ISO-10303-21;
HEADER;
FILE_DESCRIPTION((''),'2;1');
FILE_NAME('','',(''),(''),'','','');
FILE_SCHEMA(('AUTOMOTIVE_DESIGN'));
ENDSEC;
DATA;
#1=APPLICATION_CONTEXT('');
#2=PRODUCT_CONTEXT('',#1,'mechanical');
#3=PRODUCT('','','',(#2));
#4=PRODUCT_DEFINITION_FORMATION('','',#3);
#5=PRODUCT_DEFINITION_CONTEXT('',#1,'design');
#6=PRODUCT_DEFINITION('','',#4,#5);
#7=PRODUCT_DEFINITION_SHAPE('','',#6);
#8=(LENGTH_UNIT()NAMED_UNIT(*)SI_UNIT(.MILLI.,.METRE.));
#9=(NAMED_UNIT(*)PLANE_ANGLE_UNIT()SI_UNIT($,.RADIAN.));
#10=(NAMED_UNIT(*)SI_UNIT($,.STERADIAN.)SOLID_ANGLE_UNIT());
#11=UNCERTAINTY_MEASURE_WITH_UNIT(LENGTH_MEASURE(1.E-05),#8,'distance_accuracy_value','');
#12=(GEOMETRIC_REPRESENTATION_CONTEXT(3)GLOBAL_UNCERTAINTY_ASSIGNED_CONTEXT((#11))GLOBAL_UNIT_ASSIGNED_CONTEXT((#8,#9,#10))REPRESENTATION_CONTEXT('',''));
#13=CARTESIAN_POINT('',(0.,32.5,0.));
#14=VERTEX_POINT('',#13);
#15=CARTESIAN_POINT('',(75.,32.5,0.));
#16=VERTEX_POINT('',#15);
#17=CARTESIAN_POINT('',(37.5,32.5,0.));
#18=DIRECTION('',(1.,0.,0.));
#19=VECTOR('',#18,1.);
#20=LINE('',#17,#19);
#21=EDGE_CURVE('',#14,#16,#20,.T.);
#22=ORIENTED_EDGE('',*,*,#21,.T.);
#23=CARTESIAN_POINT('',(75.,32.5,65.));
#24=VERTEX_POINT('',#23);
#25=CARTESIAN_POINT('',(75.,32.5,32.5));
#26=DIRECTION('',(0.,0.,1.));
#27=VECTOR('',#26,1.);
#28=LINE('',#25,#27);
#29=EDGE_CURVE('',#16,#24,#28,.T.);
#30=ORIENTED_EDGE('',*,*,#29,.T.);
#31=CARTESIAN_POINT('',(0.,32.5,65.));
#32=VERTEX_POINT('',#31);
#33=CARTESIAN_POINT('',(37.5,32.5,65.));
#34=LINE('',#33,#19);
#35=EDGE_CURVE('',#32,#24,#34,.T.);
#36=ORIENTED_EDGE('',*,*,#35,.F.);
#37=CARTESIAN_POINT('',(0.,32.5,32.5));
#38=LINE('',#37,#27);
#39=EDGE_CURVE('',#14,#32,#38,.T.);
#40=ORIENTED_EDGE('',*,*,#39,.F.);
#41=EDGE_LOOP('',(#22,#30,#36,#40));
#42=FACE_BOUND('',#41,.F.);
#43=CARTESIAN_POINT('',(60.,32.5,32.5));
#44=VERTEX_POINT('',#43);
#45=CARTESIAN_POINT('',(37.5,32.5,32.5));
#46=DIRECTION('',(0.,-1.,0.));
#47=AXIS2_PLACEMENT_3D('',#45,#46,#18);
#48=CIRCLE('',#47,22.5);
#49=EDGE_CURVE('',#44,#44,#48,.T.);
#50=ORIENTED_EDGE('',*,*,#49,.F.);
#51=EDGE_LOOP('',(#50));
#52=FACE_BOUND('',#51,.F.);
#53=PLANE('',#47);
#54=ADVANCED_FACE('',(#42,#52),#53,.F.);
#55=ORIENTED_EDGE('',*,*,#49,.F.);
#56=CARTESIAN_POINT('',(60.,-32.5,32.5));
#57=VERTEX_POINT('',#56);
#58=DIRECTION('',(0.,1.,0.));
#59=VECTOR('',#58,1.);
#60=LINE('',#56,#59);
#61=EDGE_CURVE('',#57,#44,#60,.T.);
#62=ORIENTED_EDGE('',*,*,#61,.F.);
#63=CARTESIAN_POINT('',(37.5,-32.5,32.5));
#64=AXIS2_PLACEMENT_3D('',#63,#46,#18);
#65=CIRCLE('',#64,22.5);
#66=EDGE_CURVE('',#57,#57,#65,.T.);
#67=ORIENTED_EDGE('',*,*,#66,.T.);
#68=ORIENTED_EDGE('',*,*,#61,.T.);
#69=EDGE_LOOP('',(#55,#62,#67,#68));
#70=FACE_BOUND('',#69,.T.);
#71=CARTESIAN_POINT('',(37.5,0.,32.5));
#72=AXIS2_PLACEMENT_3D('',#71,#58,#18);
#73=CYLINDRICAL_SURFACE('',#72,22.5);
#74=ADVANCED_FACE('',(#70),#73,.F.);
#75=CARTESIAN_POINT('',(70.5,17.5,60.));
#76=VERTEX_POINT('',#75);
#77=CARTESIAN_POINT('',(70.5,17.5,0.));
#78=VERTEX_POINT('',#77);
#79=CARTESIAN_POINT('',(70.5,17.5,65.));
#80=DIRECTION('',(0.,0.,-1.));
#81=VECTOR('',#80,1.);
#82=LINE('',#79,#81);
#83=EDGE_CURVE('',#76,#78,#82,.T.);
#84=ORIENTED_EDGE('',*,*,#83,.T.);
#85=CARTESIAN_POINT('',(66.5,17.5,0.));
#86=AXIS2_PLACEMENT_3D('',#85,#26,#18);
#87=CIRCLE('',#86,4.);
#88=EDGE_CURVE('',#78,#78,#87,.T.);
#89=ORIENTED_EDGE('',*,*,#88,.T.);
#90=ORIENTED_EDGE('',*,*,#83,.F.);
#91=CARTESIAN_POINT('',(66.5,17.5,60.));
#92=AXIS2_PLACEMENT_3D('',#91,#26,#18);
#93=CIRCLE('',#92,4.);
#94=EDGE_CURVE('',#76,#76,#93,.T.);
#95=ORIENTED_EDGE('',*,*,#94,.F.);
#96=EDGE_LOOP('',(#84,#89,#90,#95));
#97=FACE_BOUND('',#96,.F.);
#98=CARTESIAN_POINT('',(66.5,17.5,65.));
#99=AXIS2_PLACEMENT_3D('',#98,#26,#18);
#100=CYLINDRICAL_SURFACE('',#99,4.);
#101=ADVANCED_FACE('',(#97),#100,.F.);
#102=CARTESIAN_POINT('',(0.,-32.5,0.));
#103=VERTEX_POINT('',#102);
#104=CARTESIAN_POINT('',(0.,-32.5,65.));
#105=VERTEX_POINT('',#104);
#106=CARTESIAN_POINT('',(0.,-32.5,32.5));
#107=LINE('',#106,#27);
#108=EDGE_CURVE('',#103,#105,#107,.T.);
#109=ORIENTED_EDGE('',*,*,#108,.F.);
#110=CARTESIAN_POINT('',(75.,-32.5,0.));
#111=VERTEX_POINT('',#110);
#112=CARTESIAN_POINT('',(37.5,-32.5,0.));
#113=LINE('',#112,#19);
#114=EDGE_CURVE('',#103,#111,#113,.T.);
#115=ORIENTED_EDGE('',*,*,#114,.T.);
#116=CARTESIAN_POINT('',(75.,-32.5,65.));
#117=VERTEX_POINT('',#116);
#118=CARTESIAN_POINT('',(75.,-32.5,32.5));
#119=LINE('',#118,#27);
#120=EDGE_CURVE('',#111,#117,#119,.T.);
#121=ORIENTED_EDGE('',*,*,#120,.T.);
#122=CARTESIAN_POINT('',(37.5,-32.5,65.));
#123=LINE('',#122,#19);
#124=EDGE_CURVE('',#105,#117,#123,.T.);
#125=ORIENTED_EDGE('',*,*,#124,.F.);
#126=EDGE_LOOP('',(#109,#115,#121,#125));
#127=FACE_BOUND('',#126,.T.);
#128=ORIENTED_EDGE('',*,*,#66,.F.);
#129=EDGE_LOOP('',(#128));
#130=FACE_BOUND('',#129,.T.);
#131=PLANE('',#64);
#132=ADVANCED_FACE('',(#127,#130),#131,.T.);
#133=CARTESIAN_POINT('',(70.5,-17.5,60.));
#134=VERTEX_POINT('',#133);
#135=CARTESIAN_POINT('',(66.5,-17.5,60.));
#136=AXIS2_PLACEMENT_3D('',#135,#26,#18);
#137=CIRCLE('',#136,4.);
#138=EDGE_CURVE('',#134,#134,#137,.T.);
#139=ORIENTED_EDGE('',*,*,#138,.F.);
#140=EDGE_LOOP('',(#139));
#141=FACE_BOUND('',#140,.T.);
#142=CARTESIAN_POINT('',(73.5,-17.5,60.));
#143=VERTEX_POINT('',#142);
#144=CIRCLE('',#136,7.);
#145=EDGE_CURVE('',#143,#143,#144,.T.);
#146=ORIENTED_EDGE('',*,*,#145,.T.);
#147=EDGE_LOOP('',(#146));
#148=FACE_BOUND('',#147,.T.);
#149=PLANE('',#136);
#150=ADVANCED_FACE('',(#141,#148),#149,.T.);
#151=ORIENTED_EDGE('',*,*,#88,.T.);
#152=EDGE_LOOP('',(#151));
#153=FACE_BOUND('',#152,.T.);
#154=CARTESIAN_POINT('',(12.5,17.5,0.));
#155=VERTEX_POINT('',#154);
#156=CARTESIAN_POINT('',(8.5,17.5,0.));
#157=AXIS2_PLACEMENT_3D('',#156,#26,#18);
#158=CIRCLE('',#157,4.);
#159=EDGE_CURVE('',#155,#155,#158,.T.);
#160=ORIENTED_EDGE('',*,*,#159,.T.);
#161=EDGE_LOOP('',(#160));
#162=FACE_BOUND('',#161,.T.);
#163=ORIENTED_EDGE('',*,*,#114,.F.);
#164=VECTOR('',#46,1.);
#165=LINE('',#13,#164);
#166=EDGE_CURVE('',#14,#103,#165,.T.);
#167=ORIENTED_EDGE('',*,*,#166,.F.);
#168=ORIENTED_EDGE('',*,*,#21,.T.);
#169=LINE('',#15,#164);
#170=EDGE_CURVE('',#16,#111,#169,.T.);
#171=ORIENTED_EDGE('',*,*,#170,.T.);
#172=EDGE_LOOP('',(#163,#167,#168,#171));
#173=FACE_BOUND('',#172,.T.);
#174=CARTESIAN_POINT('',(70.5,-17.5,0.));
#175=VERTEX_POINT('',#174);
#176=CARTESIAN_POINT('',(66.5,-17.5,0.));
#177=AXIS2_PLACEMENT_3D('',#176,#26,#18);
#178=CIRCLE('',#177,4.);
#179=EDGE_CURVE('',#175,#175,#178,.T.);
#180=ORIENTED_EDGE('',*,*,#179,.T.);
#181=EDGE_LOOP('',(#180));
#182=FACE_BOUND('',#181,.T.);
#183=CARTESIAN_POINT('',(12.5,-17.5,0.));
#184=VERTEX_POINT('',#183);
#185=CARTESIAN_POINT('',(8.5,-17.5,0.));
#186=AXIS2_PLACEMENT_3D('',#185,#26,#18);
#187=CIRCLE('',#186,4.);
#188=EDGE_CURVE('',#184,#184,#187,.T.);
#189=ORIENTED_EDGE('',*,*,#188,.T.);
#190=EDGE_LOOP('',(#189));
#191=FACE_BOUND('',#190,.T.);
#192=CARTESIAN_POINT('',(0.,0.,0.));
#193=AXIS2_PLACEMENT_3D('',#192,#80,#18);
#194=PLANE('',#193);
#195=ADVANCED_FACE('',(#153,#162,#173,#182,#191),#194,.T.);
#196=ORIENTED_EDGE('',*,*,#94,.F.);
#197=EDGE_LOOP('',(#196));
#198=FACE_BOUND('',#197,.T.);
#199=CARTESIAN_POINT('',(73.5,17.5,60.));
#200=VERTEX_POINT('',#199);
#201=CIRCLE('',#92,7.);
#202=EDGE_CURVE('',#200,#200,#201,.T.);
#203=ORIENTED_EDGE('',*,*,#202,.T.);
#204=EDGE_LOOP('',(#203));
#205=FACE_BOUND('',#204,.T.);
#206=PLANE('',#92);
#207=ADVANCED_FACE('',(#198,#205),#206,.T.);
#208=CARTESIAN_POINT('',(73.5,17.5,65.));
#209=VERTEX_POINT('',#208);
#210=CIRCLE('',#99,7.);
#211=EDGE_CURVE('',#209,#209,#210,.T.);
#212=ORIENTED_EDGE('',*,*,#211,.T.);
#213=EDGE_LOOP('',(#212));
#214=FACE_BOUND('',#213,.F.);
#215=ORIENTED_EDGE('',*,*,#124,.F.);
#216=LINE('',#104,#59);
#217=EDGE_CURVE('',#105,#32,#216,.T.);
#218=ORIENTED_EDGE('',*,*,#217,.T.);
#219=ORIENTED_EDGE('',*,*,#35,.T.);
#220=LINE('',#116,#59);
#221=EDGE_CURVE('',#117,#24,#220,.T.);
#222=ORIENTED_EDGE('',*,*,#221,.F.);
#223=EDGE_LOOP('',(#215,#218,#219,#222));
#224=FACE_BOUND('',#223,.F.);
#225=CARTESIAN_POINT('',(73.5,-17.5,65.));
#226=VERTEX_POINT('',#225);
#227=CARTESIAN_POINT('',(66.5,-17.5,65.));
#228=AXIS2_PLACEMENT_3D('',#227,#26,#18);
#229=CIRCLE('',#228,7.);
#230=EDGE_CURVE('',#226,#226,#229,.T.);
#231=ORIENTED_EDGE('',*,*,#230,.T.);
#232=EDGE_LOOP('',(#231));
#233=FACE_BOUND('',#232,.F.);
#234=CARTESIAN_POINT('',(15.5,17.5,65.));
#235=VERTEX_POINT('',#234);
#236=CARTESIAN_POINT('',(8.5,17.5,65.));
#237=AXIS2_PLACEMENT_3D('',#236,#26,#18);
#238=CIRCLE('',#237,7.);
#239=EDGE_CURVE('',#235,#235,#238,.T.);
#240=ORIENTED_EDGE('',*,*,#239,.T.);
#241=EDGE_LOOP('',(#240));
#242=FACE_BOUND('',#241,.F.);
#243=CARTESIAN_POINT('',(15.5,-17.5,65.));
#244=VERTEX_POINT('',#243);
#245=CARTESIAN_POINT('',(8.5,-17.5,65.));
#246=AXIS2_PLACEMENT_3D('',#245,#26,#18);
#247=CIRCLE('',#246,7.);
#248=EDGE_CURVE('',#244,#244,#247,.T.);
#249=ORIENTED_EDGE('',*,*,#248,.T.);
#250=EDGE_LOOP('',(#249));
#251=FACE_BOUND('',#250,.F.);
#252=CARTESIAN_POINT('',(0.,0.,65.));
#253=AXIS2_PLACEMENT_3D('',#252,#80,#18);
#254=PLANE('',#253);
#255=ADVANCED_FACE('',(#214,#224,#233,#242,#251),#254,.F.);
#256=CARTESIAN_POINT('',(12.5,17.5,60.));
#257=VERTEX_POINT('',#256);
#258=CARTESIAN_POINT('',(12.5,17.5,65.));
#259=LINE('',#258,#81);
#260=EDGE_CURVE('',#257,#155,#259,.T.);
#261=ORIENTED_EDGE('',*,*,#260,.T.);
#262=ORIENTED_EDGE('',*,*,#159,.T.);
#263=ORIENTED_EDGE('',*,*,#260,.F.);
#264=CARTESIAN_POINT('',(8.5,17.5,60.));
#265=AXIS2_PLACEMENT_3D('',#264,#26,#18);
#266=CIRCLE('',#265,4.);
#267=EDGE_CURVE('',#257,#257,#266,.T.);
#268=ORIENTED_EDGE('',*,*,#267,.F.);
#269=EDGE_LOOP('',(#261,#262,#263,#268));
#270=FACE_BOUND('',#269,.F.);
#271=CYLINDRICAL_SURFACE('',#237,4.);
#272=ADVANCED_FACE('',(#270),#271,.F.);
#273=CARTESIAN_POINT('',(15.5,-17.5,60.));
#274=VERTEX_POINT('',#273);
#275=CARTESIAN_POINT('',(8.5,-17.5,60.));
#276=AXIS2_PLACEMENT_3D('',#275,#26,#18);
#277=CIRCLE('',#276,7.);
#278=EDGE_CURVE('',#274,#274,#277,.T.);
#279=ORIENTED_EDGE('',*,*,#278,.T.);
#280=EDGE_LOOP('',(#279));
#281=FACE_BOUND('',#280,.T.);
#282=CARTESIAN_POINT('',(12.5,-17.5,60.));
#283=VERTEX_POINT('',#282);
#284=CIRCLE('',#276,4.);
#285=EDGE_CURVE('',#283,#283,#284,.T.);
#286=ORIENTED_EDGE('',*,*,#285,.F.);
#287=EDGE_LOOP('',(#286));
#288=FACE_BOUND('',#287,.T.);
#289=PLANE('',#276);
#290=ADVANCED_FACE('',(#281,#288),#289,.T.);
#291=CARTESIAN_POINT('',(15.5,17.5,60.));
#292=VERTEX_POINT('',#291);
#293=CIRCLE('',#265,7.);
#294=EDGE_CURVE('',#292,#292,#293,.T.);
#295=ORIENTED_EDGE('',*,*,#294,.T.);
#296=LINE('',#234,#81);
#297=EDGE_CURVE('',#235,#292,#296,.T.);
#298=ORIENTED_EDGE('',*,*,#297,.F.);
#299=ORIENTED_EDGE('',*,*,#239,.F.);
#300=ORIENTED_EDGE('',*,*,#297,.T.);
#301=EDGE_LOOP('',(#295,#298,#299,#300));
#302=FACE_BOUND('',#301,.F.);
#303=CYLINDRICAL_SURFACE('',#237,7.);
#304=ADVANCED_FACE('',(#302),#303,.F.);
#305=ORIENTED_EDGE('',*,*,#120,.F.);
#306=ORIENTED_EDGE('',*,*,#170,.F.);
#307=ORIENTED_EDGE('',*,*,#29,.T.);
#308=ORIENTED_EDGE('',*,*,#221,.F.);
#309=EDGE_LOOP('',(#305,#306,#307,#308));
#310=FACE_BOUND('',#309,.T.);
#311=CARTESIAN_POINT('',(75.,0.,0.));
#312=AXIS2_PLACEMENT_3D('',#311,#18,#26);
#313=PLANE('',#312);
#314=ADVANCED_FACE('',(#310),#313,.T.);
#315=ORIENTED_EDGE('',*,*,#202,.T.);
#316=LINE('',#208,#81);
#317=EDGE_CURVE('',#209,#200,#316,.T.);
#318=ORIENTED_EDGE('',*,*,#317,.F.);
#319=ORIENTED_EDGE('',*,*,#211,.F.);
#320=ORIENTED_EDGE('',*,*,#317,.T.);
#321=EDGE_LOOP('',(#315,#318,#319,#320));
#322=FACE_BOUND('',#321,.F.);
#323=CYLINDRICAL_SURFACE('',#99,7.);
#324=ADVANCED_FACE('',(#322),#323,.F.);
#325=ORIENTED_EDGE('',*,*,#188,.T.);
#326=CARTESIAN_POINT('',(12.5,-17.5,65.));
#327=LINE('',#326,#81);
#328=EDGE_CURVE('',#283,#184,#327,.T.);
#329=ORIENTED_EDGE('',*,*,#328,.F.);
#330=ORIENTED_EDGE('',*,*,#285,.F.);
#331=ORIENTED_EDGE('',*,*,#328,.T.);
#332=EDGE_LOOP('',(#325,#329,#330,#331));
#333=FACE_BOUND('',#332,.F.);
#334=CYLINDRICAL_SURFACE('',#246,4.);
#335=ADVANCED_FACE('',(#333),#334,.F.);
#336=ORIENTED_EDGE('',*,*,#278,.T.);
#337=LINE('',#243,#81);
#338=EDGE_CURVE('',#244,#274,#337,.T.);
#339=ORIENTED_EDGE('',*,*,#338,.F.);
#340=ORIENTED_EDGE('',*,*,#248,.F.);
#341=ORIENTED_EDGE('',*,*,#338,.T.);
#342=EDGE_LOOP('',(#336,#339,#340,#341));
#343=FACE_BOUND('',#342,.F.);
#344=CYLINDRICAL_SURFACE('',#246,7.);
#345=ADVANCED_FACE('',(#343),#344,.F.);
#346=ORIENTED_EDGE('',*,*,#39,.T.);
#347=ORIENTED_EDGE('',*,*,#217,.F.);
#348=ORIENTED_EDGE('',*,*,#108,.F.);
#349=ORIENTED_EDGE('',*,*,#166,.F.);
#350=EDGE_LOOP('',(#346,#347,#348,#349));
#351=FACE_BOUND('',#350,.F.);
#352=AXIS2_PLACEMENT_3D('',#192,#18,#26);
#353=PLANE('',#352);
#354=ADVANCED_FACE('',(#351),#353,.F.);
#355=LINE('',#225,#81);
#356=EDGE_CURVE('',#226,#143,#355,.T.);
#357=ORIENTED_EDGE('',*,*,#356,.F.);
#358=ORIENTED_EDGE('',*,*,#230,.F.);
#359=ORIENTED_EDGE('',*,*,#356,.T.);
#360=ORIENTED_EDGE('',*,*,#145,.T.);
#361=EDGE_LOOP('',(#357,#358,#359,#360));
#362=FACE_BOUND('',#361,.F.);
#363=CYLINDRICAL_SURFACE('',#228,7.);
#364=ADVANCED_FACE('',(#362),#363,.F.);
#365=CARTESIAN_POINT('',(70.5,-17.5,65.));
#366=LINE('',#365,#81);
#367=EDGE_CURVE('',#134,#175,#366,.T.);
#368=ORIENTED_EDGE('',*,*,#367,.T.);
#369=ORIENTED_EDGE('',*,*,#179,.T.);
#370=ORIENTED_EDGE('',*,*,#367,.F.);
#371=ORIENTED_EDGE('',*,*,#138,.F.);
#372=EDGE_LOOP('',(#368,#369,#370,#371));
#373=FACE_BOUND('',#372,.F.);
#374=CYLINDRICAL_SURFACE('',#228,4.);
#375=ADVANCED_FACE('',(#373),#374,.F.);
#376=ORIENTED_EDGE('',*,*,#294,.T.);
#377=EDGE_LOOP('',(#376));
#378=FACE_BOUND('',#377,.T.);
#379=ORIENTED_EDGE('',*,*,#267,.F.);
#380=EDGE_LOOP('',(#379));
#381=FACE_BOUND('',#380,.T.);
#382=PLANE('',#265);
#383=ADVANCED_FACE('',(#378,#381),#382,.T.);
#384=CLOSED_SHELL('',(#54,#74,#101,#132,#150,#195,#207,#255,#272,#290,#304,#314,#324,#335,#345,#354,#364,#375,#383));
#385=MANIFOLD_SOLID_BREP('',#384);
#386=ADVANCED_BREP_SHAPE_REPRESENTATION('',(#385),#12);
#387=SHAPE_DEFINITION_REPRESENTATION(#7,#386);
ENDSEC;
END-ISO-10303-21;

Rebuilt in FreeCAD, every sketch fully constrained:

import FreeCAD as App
import Part
import Sketcher

doc = App.newDocument("Part")
body = doc.addObject("PartDesign::Body", "Body")

# Sketch on XZ plane
sketch1 = body.newObject("Sketcher::SketchObject", "Sketch")
sketch1.AttachmentSupport = (doc.getObject("XZ_Plane"), [""])
sketch1.MapMode = "FlatFace"
sketch1.addGeometry([
    Part.LineSegment(App.Vector(0, 65, 0), App.Vector(0, 0, 0)),  # 0
    Part.LineSegment(App.Vector(0, 0, 0), App.Vector(75, 0, 0)),  # 1
    Part.LineSegment(App.Vector(75, 0, 0), App.Vector(75, 65, 0)),  # 2
    Part.LineSegment(App.Vector(75, 65, 0), App.Vector(0, 65, 0)),  # 3
    Part.Circle(App.Vector(38, 32, 0), App.Vector(0, 0, 1), 22),  # 4
], False)
sketch1.addConstraint([
    Sketcher.Constraint("Coincident", 0, 2, 1, 1),
    Sketcher.Constraint("Coincident", 1, 2, 2, 1),
    Sketcher.Constraint("Coincident", 2, 2, 3, 1),
    Sketcher.Constraint("Coincident", 3, 2, 0, 1),
    Sketcher.Constraint("Vertical", 0),
    Sketcher.Constraint("Horizontal", 1),
    Sketcher.Constraint("Vertical", 2),
    Sketcher.Constraint("Horizontal", 3),
    Sketcher.Constraint("Coincident", 0, 2, -1, 1),
    Sketcher.Constraint("Diameter", 4, 45.0),
    Sketcher.Constraint("DistanceX", 1, 1, 1, 2, 75.0),
    Sketcher.Constraint("DistanceY", 0, 2, 0, 1, 65.0),
    Sketcher.Constraint("DistanceX", -1, 1, 4, 3, 37.5),
    Sketcher.Constraint("DistanceY", -1, 1, 4, 3, 32.5),
])
pad1 = body.newObject("PartDesign::Pad", "Pad")
pad1.Profile = sketch1
pad1.Length = 65
pad1.Midplane = True

# Sketch on XY plane
sketch2 = body.newObject("Sketcher::SketchObject", "Sketch001")
sketch2.AttachmentSupport = (doc.getObject("XY_Plane"), [""])
sketch2.MapMode = "FlatFace"
sketch2.AttachmentOffset = App.Placement(App.Vector(0, 0, 65), App.Rotation())
sketch2.addGeometry([
    Part.Circle(App.Vector(66.5, 17.5, 0), App.Vector(0, 0, 1), 4),
    Part.Circle(App.Vector(66.5, -17.5, 0), App.Vector(0, 0, 1), 4),
    Part.Circle(App.Vector(8.5, -17.5, 0), App.Vector(0, 0, 1), 4),
    Part.Circle(App.Vector(8.5, 17.5, 0), App.Vector(0, 0, 1), 4),
], False)
sketch2.addConstraint([
    Sketcher.Constraint("Equal", 0, 1),
    Sketcher.Constraint("Equal", 1, 2),
    Sketcher.Constraint("Equal", 2, 3),
    Sketcher.Constraint("Symmetric", 0, 3, 1, 3, -1),
    Sketcher.Constraint("Symmetric", 2, 3, 3, 3, -1),
    Sketcher.Constraint("Horizontal", 1, 3, 2, 3),
    Sketcher.Constraint("Diameter", 0, 8.0),
    Sketcher.Constraint("DistanceY", 1, 3, 0, 3, 35.0),
    Sketcher.Constraint("DistanceX", 2, 3, 1, 3, 58.0),
    Sketcher.Constraint("DistanceX", -1, 1, 0, 3, 66.5),
])
pocket1 = body.newObject("PartDesign::Pocket", "Pocket")
pocket1.Profile = sketch2
pocket1.Type = "ThroughAll"

# Sketch on XY plane
sketch3 = body.newObject("Sketcher::SketchObject", "Sketch002")
sketch3.AttachmentSupport = (doc.getObject("XY_Plane"), [""])
sketch3.MapMode = "FlatFace"
sketch3.AttachmentOffset = App.Placement(App.Vector(0, 0, 65), App.Rotation())
sketch3.addGeometry([
    Part.Circle(App.Vector(8.5, 17.5, 0), App.Vector(0, 0, 1), 7),  # 0
    Part.Circle(App.Vector(8.5, 17.5, 0), App.Vector(0, 0, 1), 4),  # 1
    Part.Circle(App.Vector(66.5, 17.5, 0), App.Vector(0, 0, 1), 7),  # 2
    Part.Circle(App.Vector(66.5, 17.5, 0), App.Vector(0, 0, 1), 4),  # 3
    Part.Circle(App.Vector(66.5, -17.5, 0), App.Vector(0, 0, 1), 7),  # 4
    Part.Circle(App.Vector(66.5, -17.5, 0), App.Vector(0, 0, 1), 4),  # 5
    Part.Circle(App.Vector(8.5, -17.5, 0), App.Vector(0, 0, 1), 7),  # 6
    Part.Circle(App.Vector(8.5, -17.5, 0), App.Vector(0, 0, 1), 4),  # 7
], False)
sketch3.addConstraint([
    Sketcher.Constraint("Coincident", 1, 3, 0, 3),
    Sketcher.Constraint("Coincident", 3, 3, 2, 3),
    Sketcher.Constraint("Coincident", 5, 3, 4, 3),
    Sketcher.Constraint("Coincident", 7, 3, 6, 3),
    Sketcher.Constraint("Equal", 0, 2),
    Sketcher.Constraint("Equal", 1, 3),
    Sketcher.Constraint("Equal", 2, 4),
    Sketcher.Constraint("Equal", 3, 5),
    Sketcher.Constraint("Equal", 4, 6),
    Sketcher.Constraint("Equal", 5, 7),
    Sketcher.Constraint("Symmetric", 2, 3, 4, 3, -1),
    Sketcher.Constraint("Symmetric", 0, 3, 6, 3, -1),
    Sketcher.Constraint("Horizontal", 1, 3, 2, 3),
    Sketcher.Constraint("Diameter", 0, 14.0),
    Sketcher.Constraint("Diameter", 1, 8.0),
    Sketcher.Constraint("DistanceX", 0, 3, 2, 3, 58.0),
    Sketcher.Constraint("DistanceY", 4, 3, 2, 3, 35.0),
    Sketcher.Constraint("DistanceX", -1, 1, 0, 3, 8.5),
])
pocket2 = body.newObject("PartDesign::Pocket", "Pocket001")
pocket2.Profile = sketch3
pocket2.Length = 5

doc.recompute()
